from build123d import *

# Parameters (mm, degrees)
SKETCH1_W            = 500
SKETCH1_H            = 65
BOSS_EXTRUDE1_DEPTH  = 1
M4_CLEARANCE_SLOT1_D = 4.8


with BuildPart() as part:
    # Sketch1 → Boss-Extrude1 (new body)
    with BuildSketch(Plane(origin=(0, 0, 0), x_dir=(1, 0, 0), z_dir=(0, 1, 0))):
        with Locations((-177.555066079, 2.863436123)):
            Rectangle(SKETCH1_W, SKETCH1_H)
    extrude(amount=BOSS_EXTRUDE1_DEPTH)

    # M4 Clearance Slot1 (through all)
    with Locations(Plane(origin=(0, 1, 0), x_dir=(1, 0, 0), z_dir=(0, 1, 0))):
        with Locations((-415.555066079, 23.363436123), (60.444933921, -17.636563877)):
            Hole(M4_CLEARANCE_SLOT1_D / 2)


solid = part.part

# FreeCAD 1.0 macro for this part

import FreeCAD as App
import Part
import Sketcher

doc = App.newDocument("Part")
body = doc.addObject("PartDesign::Body", "Body")

sketch1 = body.newObject("Sketcher::SketchObject", "Sketch")
sketch1.AttachmentSupport = (doc.getObject("XZ_Plane"), [""])
sketch1.MapMode = "FlatFace"
sketch1.addGeometry([
    Part.LineSegment(App.Vector(-427.555066, -35.363436, 0), App.Vector(-427.555066, 29.636564, 0)),
    Part.LineSegment(App.Vector(-427.555066, 29.636564, 0), App.Vector(72.444934, 29.636564, 0)),
    Part.LineSegment(App.Vector(72.444934, 29.636564, 0), App.Vector(72.444934, -35.363436, 0)),
    Part.LineSegment(App.Vector(72.444934, -35.363436, 0), App.Vector(-427.555066, -35.363436, 0)),
], False)
sketch1.addConstraint([
    Sketcher.Constraint("Coincident", 0, 2, 1, 1),
    Sketcher.Constraint("Coincident", 1, 2, 2, 1),
    Sketcher.Constraint("Coincident", 2, 2, 3, 1),
    Sketcher.Constraint("Coincident", 3, 2, 0, 1),
    Sketcher.Constraint("Vertical", 0),
    Sketcher.Constraint("Horizontal", 1),
    Sketcher.Constraint("Vertical", 2),
    Sketcher.Constraint("Horizontal", 3),
    Sketcher.Constraint("DistanceX", 1, 1, 1, 2, 500.0),
    Sketcher.Constraint("DistanceY", 0, 1, 0, 2, 65.0),
    Sketcher.Constraint("DistanceX", 0, 2, -1, 1, 427.555066),
    Sketcher.Constraint("DistanceY", -1, 1, 0, 2, 29.636564),
])
pad1 = body.newObject("PartDesign::Pad", "Pad")
pad1.Profile = sketch1
pad1.Length = 1
pad1.Reversed = True

sketch2 = body.newObject("Sketcher::SketchObject", "Sketch001")
sketch2.AttachmentSupport = (doc.getObject("XZ_Plane"), [""])
sketch2.MapMode = "FlatFace"
sketch2.AttachmentOffset = App.Placement(App.Vector(0, 0, -1), App.Rotation())
sketch2.addGeometry([
    Part.Circle(App.Vector(-415.555066, -23.363436, 0), App.Vector(0, 0, 1), 2.4),
    Part.Circle(App.Vector(60.444934, 17.636564, 0), App.Vector(0, 0, 1), 2.4),
], False)
sketch2.addConstraint([
    Sketcher.Constraint("Equal", 0, 1),
    Sketcher.Constraint("Diameter", 0, 4.8),
    Sketcher.Constraint("DistanceX", 0, 3, 1, 3, 476.0),
    Sketcher.Constraint("DistanceY", 0, 3, 1, 3, 41.0),
    Sketcher.Constraint("DistanceX", 0, 3, -1, 1, 415.555066),
    Sketcher.Constraint("DistanceY", 0, 3, -1, 1, 23.363436),
])
doc.recompute()
hole = body.newObject("PartDesign::Hole", "Hole")
hole.Profile = sketch2
hole.ThreadType = "None"
hole.Diameter = 4.8
hole.DepthType = "ThroughAll"
hole.Reversed = True

doc.recompute()
